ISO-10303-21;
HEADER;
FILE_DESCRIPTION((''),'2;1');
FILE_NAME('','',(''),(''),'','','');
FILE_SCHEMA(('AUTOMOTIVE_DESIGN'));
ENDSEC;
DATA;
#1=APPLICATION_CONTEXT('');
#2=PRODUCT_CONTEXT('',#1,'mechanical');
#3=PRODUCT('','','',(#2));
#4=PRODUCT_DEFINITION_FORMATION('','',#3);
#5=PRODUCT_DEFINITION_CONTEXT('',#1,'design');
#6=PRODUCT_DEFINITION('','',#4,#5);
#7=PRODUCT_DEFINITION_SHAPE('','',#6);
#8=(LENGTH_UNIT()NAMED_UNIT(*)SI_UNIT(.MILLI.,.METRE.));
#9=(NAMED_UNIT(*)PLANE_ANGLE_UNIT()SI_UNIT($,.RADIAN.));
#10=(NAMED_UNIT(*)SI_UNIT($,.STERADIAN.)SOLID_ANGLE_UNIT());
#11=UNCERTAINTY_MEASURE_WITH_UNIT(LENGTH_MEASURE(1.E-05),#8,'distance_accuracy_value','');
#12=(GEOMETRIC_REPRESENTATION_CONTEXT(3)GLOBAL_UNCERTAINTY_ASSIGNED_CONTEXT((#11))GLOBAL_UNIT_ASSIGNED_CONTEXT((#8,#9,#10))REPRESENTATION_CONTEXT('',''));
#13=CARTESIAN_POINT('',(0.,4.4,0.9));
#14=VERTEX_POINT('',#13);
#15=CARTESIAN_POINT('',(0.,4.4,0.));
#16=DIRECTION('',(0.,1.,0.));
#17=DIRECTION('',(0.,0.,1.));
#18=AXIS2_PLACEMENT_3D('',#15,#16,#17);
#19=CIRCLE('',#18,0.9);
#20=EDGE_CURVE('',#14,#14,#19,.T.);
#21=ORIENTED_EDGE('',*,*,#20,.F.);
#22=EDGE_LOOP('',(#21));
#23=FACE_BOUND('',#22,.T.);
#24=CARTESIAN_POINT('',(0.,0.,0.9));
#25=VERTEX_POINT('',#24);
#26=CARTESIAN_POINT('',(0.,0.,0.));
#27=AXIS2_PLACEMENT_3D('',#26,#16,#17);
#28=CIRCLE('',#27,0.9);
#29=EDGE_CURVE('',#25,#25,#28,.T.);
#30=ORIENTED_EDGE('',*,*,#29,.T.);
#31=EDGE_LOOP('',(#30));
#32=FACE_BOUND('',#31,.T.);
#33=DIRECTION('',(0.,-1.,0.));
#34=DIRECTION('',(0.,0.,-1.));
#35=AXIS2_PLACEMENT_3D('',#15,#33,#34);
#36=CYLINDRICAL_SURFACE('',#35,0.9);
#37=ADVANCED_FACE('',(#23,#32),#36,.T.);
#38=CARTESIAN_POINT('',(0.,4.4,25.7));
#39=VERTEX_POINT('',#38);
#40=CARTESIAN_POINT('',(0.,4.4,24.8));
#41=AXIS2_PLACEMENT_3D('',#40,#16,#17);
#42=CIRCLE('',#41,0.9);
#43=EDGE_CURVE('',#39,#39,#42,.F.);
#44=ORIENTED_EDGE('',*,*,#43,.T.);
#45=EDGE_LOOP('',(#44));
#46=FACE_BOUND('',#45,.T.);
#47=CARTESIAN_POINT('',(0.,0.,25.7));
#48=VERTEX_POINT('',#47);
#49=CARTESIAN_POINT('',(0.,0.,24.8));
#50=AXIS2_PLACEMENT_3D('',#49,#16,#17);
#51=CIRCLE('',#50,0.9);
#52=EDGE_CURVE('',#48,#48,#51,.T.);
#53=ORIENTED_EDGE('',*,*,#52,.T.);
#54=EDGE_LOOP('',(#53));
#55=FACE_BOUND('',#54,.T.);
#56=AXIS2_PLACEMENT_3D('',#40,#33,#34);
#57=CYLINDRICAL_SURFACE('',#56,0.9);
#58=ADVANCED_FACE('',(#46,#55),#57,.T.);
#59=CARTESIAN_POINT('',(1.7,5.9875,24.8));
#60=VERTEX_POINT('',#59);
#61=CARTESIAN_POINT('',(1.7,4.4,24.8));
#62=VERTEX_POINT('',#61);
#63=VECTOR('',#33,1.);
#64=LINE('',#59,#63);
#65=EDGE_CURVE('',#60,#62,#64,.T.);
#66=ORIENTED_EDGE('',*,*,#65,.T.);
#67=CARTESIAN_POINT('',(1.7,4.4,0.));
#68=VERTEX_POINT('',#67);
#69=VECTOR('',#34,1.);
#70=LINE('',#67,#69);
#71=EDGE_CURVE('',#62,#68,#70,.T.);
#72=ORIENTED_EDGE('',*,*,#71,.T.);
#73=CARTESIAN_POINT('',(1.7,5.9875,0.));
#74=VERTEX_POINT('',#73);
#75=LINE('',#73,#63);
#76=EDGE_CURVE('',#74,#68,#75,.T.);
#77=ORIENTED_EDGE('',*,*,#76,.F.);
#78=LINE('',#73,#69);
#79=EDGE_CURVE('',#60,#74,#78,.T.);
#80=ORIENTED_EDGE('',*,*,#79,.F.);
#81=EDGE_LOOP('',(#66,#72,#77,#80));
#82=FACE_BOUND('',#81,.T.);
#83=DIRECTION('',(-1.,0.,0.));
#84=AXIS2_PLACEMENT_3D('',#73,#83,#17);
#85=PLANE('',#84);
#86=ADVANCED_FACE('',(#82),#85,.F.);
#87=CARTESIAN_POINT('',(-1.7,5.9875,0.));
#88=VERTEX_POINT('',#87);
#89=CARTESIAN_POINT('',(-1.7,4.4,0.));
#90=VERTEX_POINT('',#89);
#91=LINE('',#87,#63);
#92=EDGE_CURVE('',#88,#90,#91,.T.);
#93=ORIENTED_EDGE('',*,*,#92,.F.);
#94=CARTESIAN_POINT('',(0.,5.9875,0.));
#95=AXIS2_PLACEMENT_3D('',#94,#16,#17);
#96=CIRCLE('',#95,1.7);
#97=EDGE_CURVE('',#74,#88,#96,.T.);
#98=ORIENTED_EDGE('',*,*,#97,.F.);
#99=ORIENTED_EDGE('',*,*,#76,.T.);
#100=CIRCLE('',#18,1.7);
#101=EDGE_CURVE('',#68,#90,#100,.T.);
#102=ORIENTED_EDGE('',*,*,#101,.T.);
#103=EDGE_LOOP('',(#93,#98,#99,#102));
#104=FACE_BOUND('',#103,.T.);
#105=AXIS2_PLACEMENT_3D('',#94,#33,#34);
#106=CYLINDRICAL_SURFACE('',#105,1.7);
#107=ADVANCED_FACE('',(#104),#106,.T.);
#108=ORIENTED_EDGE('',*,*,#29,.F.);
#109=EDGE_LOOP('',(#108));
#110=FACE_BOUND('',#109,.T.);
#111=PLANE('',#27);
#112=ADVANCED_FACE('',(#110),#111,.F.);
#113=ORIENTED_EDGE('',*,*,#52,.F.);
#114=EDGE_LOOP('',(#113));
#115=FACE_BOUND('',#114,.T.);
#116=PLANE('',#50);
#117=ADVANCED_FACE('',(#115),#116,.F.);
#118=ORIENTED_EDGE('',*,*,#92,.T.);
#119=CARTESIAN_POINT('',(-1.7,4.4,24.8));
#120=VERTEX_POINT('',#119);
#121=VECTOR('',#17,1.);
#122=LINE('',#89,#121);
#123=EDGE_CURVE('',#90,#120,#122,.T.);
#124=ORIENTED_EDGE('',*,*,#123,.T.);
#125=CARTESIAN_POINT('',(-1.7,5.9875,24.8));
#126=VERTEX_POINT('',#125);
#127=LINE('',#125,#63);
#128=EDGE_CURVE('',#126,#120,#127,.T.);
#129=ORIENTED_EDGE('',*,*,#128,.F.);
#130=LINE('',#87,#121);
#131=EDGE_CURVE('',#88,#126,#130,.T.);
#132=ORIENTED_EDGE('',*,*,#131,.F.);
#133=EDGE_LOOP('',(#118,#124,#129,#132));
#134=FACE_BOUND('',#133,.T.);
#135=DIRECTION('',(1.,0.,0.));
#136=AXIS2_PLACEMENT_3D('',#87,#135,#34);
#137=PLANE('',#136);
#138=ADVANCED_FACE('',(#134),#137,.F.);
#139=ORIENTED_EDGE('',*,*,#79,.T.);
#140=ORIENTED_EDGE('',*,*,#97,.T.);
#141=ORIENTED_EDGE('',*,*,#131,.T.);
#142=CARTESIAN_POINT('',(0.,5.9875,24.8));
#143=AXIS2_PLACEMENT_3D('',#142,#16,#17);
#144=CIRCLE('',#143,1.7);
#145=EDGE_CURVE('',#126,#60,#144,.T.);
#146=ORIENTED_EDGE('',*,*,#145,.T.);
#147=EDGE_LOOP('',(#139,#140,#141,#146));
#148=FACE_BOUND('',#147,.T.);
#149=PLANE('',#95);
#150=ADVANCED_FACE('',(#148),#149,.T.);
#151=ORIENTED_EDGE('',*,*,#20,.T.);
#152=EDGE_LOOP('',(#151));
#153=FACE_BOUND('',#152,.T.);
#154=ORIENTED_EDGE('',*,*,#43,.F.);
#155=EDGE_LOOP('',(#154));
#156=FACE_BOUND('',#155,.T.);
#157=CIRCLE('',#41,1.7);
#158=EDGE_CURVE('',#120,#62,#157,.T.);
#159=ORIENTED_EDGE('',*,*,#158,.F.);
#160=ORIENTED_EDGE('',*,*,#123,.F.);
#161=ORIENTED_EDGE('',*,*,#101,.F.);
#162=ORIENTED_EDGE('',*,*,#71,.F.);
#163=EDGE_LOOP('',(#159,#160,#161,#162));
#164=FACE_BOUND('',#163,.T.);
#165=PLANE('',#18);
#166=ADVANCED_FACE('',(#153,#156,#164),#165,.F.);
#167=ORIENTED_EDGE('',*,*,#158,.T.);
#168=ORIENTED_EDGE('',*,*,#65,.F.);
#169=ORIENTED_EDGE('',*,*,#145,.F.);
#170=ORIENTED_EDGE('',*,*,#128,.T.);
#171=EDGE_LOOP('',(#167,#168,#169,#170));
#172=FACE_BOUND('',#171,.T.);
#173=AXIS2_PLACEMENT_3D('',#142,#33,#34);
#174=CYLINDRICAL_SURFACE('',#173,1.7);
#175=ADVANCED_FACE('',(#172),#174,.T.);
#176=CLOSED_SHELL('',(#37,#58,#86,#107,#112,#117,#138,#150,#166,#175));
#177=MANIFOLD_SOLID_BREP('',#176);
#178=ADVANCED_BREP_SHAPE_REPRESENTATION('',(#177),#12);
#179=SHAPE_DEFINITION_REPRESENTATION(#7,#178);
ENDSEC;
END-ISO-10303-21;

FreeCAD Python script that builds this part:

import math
import FreeCAD as App
import Part
import Sketcher
Q = App.Units.Quantity

doc = App.newDocument("Part")
body = doc.addObject("PartDesign::Body", "Body")

# Sketch on XZ plane
sketch1 = body.newObject("Sketcher::SketchObject", "Sketch")
sketch1.AttachmentSupport = (doc.getObject("XZ_Plane"), [""])
sketch1.MapMode = "FlatFace"
sketch1.addGeometry(Part.Circle(App.Vector(0, 0, 0), App.Vector(0, 0, 1), 0.9), False)
sketch1.addConstraint(Sketcher.Constraint("Coincident", 0, 3, -1, 1))
sketch1.addConstraint(Sketcher.Constraint("Diameter", 0, Q("1.8 mm")))
pad1 = body.newObject("PartDesign::Pad", "Pad")
pad1.Profile = sketch1
pad1.Length = 4.4
pad1.Reversed = True
body2 = doc.addObject("PartDesign::Body", "Body001")

# Sketch on XZ plane
sketch2 = body2.newObject("Sketcher::SketchObject", "Sketch001")
sketch2.AttachmentSupport = (doc.getObject("XZ_Plane001"), [""])
sketch2.MapMode = "FlatFace"
sketch2.addGeometry(Part.Circle(App.Vector(0, 24.8, 0), App.Vector(0, 0, 1), 0.9), False)
sketch2.addConstraint(Sketcher.Constraint("PointOnObject", 0, 3, -2))
sketch2.addConstraint(Sketcher.Constraint("Diameter", 0, Q("1.8 mm")))
sketch2.addConstraint(Sketcher.Constraint("DistanceY", -1, 1, 0, 3, Q("24.8 mm")))
pad2 = body2.newObject("PartDesign::Pad", "Pad001")
pad2.Profile = sketch2
pad2.Length = 4.4
pad2.Reversed = True
body.AllowCompound = True
doc.recompute()

boolean = body.newObject("PartDesign::Boolean", "Boolean")
boolean.Type = "Fuse"
boolean.addObjects([body2])

# Sketch on XZ plane
sketch3 = body.newObject("Sketcher::SketchObject", "Sketch002")
sketch3.AttachmentSupport = (doc.getObject("XZ_Plane"), [""])
sketch3.MapMode = "FlatFace"
sketch3.AttachmentOffset = App.Placement(App.Vector(0, 0, -4.4), App.Rotation())
sketch3.addGeometry(Part.LineSegment(App.Vector(1.7, 24.8, 0), App.Vector(1.7, 0, 0)), False)
sketch3.addGeometry(Part.ArcOfCircle(Part.Circle(App.Vector(0, 0, 0), App.Vector(0, 0, 1), 1.7), math.radians(180), math.radians(360)), False)
sketch3.addGeometry(Part.LineSegment(App.Vector(-1.7, 0, 0), App.Vector(-1.7, 24.8, 0)), False)
sketch3.addGeometry(Part.ArcOfCircle(Part.Circle(App.Vector(0, 24.8, 0), App.Vector(0, 0, 1), 1.7), math.radians(0), math.radians(180)), False)
sketch3.addConstraint(Sketcher.Constraint("Tangent", 0, 2, 1, 2))
sketch3.addConstraint(Sketcher.Constraint("Tangent", 1, 1, 2, 1))
sketch3.addConstraint(Sketcher.Constraint("Tangent", 2, 2, 3, 2))
sketch3.addConstraint(Sketcher.Constraint("Tangent", 3, 1, 0, 1))
sketch3.addConstraint(Sketcher.Constraint("Vertical", 0))
sketch3.addConstraint(Sketcher.Constraint("Vertical", 2))
sketch3.addConstraint(Sketcher.Constraint("Coincident", 1, 3, -1, 1))
sketch3.addConstraint(Sketcher.Constraint("Radius", 1, Q("1.7 mm")))
sketch3.addConstraint(Sketcher.Constraint("DistanceY", 0, 2, 0, 1, Q("24.8 mm")))
pad3 = body.newObject("PartDesign::Pad", "Pad002")
pad3.Profile = sketch3
pad3.Length = 1.5875
pad3.Reversed = True

doc.recompute()
